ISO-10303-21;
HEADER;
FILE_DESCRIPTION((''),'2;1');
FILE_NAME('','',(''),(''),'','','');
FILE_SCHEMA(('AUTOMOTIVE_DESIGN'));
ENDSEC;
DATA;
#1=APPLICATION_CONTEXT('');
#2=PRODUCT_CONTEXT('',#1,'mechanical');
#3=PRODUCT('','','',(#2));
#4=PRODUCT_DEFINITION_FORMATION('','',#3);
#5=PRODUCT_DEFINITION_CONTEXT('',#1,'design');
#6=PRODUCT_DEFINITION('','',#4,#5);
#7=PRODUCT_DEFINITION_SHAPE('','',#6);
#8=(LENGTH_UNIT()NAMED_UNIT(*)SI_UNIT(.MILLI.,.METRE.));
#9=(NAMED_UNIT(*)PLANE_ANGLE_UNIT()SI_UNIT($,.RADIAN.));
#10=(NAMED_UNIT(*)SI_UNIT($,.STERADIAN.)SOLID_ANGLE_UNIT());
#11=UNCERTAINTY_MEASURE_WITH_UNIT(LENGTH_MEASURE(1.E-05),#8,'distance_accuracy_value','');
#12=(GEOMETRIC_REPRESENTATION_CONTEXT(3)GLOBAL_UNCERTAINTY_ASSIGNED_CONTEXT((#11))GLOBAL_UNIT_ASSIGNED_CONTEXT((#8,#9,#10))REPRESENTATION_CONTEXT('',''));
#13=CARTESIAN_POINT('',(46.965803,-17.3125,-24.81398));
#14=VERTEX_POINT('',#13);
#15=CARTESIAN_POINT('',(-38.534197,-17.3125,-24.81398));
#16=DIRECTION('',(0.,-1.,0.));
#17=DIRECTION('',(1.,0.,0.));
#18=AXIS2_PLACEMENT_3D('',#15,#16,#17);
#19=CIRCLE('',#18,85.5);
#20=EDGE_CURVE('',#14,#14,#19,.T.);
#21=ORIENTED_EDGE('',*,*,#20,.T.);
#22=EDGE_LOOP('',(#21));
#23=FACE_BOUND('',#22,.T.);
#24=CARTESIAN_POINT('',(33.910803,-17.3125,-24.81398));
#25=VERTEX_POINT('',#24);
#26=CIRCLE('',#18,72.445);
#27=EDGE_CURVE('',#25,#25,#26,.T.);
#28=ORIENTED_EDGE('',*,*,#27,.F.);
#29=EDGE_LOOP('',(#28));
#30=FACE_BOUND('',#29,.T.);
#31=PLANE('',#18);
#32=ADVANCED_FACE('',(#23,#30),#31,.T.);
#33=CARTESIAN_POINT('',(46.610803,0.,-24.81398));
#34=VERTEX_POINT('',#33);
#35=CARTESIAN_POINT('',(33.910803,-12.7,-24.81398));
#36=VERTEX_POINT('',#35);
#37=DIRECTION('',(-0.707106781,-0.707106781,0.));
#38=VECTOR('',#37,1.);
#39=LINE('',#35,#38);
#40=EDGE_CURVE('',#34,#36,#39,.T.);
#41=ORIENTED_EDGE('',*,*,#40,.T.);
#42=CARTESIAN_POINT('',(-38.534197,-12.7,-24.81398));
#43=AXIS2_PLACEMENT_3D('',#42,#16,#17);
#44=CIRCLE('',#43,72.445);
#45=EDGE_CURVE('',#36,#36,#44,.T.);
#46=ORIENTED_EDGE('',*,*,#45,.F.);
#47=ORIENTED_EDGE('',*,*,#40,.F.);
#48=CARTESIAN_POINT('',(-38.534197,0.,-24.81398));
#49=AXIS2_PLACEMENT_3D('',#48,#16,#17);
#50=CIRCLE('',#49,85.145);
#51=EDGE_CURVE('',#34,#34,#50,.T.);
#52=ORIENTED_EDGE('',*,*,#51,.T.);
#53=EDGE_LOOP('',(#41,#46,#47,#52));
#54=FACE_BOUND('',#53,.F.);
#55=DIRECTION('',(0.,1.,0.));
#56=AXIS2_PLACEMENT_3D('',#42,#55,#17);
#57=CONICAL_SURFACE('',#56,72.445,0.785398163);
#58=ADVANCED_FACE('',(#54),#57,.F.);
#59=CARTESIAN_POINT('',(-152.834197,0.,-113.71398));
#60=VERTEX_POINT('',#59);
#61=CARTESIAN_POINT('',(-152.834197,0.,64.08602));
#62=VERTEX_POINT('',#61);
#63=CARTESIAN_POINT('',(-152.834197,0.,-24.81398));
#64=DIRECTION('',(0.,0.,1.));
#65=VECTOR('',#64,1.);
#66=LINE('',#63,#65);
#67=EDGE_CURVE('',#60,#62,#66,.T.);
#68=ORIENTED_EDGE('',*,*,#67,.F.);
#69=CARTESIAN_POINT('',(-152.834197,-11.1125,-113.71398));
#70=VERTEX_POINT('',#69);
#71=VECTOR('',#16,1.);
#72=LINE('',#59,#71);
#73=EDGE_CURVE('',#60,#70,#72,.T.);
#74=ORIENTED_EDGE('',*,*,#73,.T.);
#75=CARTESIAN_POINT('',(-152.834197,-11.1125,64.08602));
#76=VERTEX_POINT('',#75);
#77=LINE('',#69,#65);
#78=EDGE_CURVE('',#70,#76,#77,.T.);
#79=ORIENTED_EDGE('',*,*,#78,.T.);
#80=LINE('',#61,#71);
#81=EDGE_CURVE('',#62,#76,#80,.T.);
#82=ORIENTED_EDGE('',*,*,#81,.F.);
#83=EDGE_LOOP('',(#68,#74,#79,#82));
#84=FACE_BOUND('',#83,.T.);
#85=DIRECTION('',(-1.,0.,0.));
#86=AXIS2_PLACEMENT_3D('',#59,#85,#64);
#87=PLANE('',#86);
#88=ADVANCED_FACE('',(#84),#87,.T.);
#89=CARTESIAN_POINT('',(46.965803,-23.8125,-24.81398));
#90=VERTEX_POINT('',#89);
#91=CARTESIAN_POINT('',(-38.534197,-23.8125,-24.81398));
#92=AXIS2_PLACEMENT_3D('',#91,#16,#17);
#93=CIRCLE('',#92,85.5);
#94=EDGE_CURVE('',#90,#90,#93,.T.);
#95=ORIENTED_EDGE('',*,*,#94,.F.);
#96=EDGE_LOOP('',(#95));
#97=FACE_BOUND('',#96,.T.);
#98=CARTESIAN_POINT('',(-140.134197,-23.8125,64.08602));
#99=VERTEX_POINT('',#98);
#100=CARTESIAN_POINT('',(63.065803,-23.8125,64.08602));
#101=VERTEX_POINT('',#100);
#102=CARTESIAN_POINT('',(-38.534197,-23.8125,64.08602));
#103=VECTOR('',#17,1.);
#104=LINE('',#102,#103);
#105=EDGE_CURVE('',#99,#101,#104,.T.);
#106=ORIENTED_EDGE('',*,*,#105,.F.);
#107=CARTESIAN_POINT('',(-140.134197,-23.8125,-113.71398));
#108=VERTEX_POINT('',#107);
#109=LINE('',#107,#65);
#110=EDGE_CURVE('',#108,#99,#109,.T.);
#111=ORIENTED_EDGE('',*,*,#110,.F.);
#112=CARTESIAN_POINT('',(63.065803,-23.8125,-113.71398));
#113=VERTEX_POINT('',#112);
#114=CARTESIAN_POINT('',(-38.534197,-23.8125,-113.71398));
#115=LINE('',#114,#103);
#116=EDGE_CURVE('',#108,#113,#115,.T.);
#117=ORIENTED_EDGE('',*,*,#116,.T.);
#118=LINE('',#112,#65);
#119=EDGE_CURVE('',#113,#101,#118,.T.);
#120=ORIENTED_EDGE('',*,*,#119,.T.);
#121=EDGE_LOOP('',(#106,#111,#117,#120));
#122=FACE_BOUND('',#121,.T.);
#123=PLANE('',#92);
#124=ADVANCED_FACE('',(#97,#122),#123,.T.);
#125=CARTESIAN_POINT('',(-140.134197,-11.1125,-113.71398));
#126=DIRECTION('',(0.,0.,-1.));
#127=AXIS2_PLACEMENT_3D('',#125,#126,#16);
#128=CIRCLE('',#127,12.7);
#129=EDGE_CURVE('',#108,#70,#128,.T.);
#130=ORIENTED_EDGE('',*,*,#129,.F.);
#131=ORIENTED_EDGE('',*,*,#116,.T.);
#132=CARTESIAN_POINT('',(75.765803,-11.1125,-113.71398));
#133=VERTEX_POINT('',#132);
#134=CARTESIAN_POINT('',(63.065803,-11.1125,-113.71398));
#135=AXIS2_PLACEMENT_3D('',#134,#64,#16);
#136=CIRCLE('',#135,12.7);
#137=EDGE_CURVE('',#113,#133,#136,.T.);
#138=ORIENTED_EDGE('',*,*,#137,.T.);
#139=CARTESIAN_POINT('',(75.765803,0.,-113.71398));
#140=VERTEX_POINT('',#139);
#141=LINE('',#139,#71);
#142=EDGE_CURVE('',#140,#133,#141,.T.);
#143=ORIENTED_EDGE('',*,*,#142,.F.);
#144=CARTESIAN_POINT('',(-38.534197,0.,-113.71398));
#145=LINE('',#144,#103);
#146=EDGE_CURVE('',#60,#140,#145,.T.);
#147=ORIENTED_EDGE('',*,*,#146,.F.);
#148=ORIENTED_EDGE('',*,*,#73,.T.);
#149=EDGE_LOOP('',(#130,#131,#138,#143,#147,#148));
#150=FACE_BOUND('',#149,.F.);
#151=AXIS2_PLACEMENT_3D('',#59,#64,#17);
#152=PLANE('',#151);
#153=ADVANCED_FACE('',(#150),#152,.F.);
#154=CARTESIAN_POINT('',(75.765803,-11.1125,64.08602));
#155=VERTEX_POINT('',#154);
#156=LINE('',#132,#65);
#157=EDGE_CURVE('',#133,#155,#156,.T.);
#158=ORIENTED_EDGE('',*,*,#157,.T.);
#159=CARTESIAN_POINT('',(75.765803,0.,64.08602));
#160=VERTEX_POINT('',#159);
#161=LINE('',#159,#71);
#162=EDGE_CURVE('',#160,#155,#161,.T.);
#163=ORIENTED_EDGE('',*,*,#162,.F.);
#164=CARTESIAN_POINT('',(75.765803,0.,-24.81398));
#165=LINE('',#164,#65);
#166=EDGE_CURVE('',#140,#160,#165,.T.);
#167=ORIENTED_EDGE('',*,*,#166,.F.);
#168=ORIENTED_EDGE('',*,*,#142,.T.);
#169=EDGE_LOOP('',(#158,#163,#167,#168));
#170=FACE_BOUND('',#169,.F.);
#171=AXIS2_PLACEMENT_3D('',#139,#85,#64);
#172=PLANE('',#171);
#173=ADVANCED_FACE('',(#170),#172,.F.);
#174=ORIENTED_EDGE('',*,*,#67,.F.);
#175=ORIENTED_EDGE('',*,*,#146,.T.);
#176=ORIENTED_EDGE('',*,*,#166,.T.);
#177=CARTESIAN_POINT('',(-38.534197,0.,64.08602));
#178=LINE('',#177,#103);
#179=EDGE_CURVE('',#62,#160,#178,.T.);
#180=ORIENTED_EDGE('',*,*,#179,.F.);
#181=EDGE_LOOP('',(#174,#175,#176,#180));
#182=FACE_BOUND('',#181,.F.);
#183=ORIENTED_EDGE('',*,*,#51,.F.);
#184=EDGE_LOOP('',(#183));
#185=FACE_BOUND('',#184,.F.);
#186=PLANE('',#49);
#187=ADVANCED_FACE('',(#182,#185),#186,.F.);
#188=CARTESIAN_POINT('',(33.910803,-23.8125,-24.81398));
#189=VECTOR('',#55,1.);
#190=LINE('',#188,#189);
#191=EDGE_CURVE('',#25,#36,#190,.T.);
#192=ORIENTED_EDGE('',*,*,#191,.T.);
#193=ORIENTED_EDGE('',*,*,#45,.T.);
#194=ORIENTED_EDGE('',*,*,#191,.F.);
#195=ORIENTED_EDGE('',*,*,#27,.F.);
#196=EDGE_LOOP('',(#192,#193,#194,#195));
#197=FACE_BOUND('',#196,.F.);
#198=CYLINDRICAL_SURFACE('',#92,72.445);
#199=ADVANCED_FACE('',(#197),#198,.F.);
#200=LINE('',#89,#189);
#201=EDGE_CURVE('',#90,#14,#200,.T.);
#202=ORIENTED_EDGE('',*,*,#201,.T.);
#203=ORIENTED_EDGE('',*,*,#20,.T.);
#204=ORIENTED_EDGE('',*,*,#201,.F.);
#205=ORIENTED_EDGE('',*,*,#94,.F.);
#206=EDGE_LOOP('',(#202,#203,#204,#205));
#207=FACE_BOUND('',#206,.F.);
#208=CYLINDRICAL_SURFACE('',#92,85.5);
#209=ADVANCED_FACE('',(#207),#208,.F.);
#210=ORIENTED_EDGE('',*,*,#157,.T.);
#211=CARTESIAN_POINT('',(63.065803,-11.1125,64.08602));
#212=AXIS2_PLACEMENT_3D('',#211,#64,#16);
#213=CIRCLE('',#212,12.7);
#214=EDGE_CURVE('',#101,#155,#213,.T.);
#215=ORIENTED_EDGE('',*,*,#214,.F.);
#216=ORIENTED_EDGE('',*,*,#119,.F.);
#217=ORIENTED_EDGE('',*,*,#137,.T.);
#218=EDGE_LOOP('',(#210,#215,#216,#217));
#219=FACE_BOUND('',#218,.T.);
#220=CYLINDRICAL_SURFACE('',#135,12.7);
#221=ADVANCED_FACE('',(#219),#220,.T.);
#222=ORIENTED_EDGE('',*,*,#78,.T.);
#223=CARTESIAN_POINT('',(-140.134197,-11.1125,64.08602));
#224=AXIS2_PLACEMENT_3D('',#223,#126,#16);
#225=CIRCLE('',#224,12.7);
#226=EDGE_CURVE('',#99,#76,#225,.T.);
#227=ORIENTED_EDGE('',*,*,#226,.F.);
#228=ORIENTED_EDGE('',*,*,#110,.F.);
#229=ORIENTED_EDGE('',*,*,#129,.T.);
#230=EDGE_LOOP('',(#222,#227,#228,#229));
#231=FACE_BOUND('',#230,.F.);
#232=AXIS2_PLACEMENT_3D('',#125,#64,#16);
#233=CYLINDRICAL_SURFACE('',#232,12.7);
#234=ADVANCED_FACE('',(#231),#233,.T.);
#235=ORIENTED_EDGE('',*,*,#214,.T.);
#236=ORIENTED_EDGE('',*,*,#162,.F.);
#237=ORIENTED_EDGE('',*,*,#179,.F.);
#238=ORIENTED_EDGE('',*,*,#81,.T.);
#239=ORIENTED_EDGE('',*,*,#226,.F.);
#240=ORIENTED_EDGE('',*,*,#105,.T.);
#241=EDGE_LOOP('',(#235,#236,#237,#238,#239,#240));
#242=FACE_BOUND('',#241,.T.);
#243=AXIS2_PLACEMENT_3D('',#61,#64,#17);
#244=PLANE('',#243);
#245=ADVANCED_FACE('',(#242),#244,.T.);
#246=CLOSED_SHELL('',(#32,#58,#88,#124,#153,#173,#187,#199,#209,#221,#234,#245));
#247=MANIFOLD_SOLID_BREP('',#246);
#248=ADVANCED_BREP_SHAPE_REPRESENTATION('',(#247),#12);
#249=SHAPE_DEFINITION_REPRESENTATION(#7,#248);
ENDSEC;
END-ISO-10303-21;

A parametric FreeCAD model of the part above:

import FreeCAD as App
import Part
import Sketcher
Q = App.Units.Quantity


def edges_at(feature, points):
    """Names of the edges that pass closest to the given points."""
    edges = feature.Shape.Edges
    near = lambda p: min(range(len(edges)), key=lambda i: edges[i].distToShape(Part.Vertex(*p))[0])
    return sorted({f"Edge{near(p) + 1}" for p in points})

doc = App.newDocument("Part")
body = doc.addObject("PartDesign::Body", "Body")

# Sketch on XZ plane
sketch1 = body.newObject("Sketcher::SketchObject", "Sketch")
sketch1.AttachmentSupport = (doc.getObject("XZ_Plane"), [""])
sketch1.MapMode = "FlatFace"
sketch1.addGeometry([
    Part.LineSegment(App.Vector(-153, 64, 0), App.Vector(-153, -114, 0)),
    Part.LineSegment(App.Vector(-153, -114, 0), App.Vector(76, -114, 0)),
    Part.LineSegment(App.Vector(76, -114, 0), App.Vector(76, 64, 0)),
    Part.LineSegment(App.Vector(76, 64, 0), App.Vector(-153, 64, 0)),
], False)
sketch1.addConstraint([
    Sketcher.Constraint("Coincident", 0, 2, 1, 1),
    Sketcher.Constraint("Coincident", 1, 2, 2, 1),
    Sketcher.Constraint("Coincident", 2, 2, 3, 1),
    Sketcher.Constraint("Coincident", 3, 2, 0, 1),
    Sketcher.Constraint("Vertical", 0),
    Sketcher.Constraint("Horizontal", 1),
    Sketcher.Constraint("Vertical", 2),
    Sketcher.Constraint("Horizontal", 3),
    Sketcher.Constraint("DistanceX", 1, 1, 1, 2, Q("9 in")),
    Sketcher.Constraint("DistanceY", 0, 2, 0, 1, Q("7 in")),
    Sketcher.Constraint("DistanceY", 0, 2, -1, 1, 113.71398),
    Sketcher.Constraint("DistanceX", 0, 2, -1, 1, 152.834197),
])
pad1 = body.newObject("PartDesign::Pad", "Pad")
pad1.Profile = sketch1
pad1.Length = Q("0.9375 in")

# Sketch on XZ plane
sketch2 = body.newObject("Sketcher::SketchObject", "Sketch001")
sketch2.AttachmentSupport = (doc.getObject("XZ_Plane"), [""])
sketch2.MapMode = "FlatFace"
sketch2.AttachmentOffset = App.Placement(App.Vector(0, 0, 0.9375 * 25.4), App.Rotation())
sketch2.addGeometry(Part.Circle(App.Vector(-39, -25, 0), App.Vector(0, 0, 1), 72), False)
sketch2.addConstraint([
    Sketcher.Constraint("Diameter", 0, 144.89),
    Sketcher.Constraint("DistanceY", 0, 3, -1, 1, 24.81398),
    Sketcher.Constraint("DistanceX", 0, 3, -1, 1, 38.534197),
])
pocket1 = body.newObject("PartDesign::Pocket", "Pocket")
pocket1.Profile = sketch2
pocket1.Length = Q("1 in")

# Sketch on XZ plane
sketch3 = body.newObject("Sketcher::SketchObject", "Sketch002")
sketch3.AttachmentSupport = (doc.getObject("XZ_Plane"), [""])
sketch3.MapMode = "FlatFace"
sketch3.AttachmentOffset = App.Placement(App.Vector(0, 0, 0.9375 * 25.4), App.Rotation())
sketch3.addGeometry([
    Part.Circle(App.Vector(-39, -25, 0), App.Vector(0, 0, 1), 86),
    Part.Circle(App.Vector(-39, -25, 0), App.Vector(0, 0, 1), 72),
], False)
sketch3.addConstraint([
    Sketcher.Constraint("Coincident", 1, 3, 0, 3),
    Sketcher.Constraint("Diameter", 0, 171.0),
    Sketcher.Constraint("Diameter", 1, 144.89),
    Sketcher.Constraint("DistanceY", 0, 3, -1, 1, 24.81398),
    Sketcher.Constraint("DistanceX", 0, 3, -1, 1, 38.534197),
])
pocket2 = body.newObject("PartDesign::Pocket", "Pocket001")
pocket2.Profile = sketch3
pocket2.Length = 6.5
doc.recompute()

fillet = body.newObject("PartDesign::Fillet", "Fillet")
fillet.Base = (pocket2, edges_at(pocket2, [(75.766, -23.812, -24.814)]))
fillet.Radius = Q("0.5 in")
doc.recompute()

fillet2 = body.newObject("PartDesign::Fillet", "Fillet001")
fillet2.Base = (fillet, edges_at(fillet, [(-152.834, -23.812, -24.814)]))
fillet2.Radius = Q("0.5 in")
doc.recompute()

chamfer = body.newObject("PartDesign::Chamfer", "Chamfer")
chamfer.Base = (fillet2, edges_at(fillet2, [(-110.979, 0, -24.814)]))
chamfer.Size = Q("0.5 in")

doc.recompute()
